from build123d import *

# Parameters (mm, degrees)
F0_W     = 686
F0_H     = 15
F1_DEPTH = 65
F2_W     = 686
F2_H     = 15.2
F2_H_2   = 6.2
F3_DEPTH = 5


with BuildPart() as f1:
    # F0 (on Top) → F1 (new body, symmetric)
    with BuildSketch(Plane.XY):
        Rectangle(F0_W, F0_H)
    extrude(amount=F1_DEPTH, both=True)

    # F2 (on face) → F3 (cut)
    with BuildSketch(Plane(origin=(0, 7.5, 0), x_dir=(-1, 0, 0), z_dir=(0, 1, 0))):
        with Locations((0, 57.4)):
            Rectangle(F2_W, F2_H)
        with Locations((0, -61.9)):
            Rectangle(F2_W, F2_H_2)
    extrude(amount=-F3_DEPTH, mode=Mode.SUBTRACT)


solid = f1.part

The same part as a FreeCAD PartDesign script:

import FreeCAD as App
import Part
import Sketcher
from FreeCAD import Vector
Q = App.Units.Quantity


def add_polygon(sketch, points):
    """Adds a closed chain of lines whose ends are joined by coincident constraints."""
    first, n = sketch.GeometryCount, len(points)
    for a, b in zip(points, points[1:] + points[:1]):
        sketch.addGeometry(Part.LineSegment(App.Vector(*a, 0), App.Vector(*b, 0)), False)
    for i in range(n):
        sketch.addConstraint(Sketcher.Constraint("Coincident", first + i, 2, first + (i + 1) % n, 1))

doc = App.newDocument("Part")
params = doc.addObject("Spreadsheet::Sheet", "Params")
for row, (alias, value) in enumerate([
    ("sketch1_width", "686 mm"),
    ("sketch1_height", "15 mm"),
    ("pad1_length", "130 mm"),
    ("sketch2_width", "686 mm"),
    ("sketch2_height", "15.2 mm"),
    ("sketch2_height2", "6.2 mm"),
    ("pocket1_length", "5 mm"),
], start=1):
    params.set(f"A{row}", alias)
    params.set(f"B{row}", "=" + value)
    params.setAlias(f"B{row}", alias)

body = doc.addObject("PartDesign::Body", "Body")

# Sketch on XY plane
sketch1 = doc.addObject("Sketcher::SketchObject", "Sketch")
body.addObject(sketch1)
sketch1.AttachmentSupport = (doc.XY_Plane, [""])
sketch1.MapMode = "FlatFace"
add_polygon(sketch1, [(-343, 8), (-343, -8), (343, -8), (343, 8)])  # lines 0-3
sketch1.addConstraint([
    Sketcher.Constraint("Vertical", 0),
    Sketcher.Constraint("Horizontal", 1),
    Sketcher.Constraint("Vertical", 2),
    Sketcher.Constraint("Horizontal", 3),
    Sketcher.Constraint("Symmetric", 0, 2, 2, 2, -1, 1),
    Sketcher.Constraint("DistanceX", 1, 1, 1, 2, Q("686 mm")),
    Sketcher.Constraint("DistanceY", 0, 2, 0, 1, Q("15 mm")),
])
sketch1.setExpression("Constraints[9]", "Params.sketch1_width")
sketch1.setExpression("Constraints[10]", "Params.sketch1_height")
pad1 = doc.addObject("PartDesign::Pad", "Pad")
body.addObject(pad1)
pad1.Profile = sketch1
pad1.setExpression("Length", "Params.pad1_length")
pad1.Midplane = True

# Sketch on XZ plane
sketch2 = doc.addObject("Sketcher::SketchObject", "Sketch001")
body.addObject(sketch2)
sketch2.AttachmentSupport = (doc.XZ_Plane, [""])
sketch2.MapMode = "FlatFace"
sketch2.AttachmentOffset = App.Placement(Vector(0, 0, -7.5), App.Rotation())
add_polygon(sketch2, [(343, 65), (343, 50), (-343, 50), (-343, 65)])  # lines 0-3
add_polygon(sketch2, [(343, -59), (343, -65), (-343, -65), (-343, -59)])  # lines 4-7
sketch2.addConstraint([
    Sketcher.Constraint("Vertical", 0),
    Sketcher.Constraint("Horizontal", 1),
    Sketcher.Constraint("Vertical", 2),
    Sketcher.Constraint("Horizontal", 3),
    Sketcher.Constraint("Vertical", 4),
    Sketcher.Constraint("Horizontal", 5),
    Sketcher.Constraint("Vertical", 6),
    Sketcher.Constraint("Horizontal", 7),
    Sketcher.Constraint("Symmetric", 2, 2, 4, 2, -1, 1),
    Sketcher.Constraint("Vertical", 3, 2, 4, 2),
    Sketcher.Constraint("Vertical", 2, 2, 5, 2),
    Sketcher.Constraint("DistanceX", 1, 2, 1, 1, Q("686 mm")),
    Sketcher.Constraint("DistanceY", 0, 2, 0, 1, Q("15.2 mm")),
    Sketcher.Constraint("DistanceY", 4, 2, 4, 1, Q("6.2 mm")),
    Sketcher.Constraint("DistanceY", -1, 1, 2, 2, Q("65 mm")),
])
sketch2.setExpression("Constraints[19]", "Params.sketch2_width")
sketch2.setExpression("Constraints[20]", "Params.sketch2_height")
sketch2.setExpression("Constraints[21]", "Params.sketch2_height2")
pocket1 = doc.addObject("PartDesign::Pocket", "Pocket")
body.addObject(pocket1)
pocket1.Profile = sketch2
pocket1.setExpression("Length", "Params.pocket1_length")
pocket1.Reversed = True

doc.recompute()
